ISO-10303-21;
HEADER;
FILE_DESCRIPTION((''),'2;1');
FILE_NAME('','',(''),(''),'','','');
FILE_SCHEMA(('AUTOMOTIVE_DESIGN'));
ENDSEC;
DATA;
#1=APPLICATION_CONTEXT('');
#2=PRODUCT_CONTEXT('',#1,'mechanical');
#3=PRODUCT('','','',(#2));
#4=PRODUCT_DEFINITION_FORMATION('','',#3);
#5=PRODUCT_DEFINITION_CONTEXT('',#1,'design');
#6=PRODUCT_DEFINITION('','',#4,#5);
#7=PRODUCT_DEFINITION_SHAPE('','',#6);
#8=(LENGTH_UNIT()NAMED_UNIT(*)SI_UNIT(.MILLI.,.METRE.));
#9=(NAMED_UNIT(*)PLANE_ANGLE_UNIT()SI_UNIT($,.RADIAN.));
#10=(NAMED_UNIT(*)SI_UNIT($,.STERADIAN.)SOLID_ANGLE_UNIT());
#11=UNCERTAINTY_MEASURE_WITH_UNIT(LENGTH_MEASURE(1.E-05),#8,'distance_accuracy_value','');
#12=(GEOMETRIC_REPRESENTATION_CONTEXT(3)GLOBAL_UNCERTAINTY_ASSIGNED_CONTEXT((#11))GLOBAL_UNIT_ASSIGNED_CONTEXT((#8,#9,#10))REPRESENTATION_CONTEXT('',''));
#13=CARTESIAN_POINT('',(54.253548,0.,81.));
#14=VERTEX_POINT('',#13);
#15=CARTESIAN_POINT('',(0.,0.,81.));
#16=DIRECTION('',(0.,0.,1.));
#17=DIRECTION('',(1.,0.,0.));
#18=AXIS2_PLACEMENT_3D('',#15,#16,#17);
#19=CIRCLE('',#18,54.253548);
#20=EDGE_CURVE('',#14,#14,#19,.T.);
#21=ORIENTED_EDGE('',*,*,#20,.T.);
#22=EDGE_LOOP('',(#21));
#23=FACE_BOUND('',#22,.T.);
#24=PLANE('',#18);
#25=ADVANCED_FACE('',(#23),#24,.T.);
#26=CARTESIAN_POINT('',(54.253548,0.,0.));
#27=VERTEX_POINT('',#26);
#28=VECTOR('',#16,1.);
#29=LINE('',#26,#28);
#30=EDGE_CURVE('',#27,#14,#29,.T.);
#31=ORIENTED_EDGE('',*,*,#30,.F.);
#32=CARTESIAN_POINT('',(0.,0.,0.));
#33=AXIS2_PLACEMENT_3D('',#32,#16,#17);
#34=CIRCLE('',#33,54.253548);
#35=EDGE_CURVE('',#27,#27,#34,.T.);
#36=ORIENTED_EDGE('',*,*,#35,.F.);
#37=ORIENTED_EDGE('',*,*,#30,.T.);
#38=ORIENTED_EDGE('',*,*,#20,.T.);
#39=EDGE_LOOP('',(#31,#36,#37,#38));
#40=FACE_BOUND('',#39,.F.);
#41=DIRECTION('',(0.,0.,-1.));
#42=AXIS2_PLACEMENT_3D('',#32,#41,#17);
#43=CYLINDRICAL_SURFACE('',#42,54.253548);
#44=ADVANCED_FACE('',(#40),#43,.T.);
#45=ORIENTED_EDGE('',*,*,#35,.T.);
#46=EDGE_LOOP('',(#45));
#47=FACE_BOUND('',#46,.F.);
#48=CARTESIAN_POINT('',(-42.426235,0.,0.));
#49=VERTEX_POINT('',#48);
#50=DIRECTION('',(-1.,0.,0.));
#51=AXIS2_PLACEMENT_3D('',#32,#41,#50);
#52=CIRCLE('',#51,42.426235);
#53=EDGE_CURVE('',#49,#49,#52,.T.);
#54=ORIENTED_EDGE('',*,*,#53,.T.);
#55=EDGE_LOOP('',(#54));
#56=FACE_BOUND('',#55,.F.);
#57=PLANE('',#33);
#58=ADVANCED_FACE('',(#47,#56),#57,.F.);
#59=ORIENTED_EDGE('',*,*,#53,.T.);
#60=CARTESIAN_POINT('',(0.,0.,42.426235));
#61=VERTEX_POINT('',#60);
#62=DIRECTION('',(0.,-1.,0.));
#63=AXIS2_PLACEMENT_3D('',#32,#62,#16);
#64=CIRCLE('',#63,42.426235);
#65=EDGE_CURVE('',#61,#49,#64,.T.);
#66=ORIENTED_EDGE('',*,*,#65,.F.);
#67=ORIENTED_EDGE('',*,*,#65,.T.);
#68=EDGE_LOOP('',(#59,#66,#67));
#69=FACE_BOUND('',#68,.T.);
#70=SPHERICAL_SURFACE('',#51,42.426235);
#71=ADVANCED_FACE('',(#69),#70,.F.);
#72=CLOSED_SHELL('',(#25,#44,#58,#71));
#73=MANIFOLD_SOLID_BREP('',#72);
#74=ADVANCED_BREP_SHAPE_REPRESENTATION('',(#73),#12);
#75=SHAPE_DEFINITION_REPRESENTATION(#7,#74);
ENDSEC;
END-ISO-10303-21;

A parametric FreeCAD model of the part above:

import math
import FreeCAD as App
import Part
import Sketcher
Q = App.Units.Quantity

doc = App.newDocument("Part")
body = doc.addObject("PartDesign::Body", "Body")

# Sketch on XY plane
sketch1 = body.newObject("Sketcher::SketchObject", "Sketch")
sketch1.AttachmentSupport = (doc.getObject("XY_Plane"), [""])
sketch1.MapMode = "FlatFace"
sketch1.addGeometry(Part.Circle(App.Vector(0, 0, 0), App.Vector(0, 0, 1), 54), False)
sketch1.addConstraint([
    Sketcher.Constraint("Coincident", 0, 3, -1, 1),
    Sketcher.Constraint("Diameter", 0, Q("108.507096 mm")),
])
pad1 = body.newObject("PartDesign::Pad", "Pad")
pad1.Profile = sketch1
pad1.Length = 81

# Sketch on XZ plane
sketch2 = body.newObject("Sketcher::SketchObject", "Sketch001")
sketch2.AttachmentSupport = (doc.getObject("XZ_Plane"), [""])
sketch2.MapMode = "FlatFace"
sketch2.addGeometry([
    Part.LineSegment(App.Vector(0, -42, 0), App.Vector(0, 42, 0)),
    Part.ArcOfCircle(Part.Circle(App.Vector(0, 0, 0), App.Vector(0, 0, 1), 42), math.radians(90), math.radians(270)),
], False)
sketch2.addConstraint([
    Sketcher.Constraint("Coincident", 0, 1, 1, 2),
    Sketcher.Constraint("Coincident", 1, 1, 0, 2),
    Sketcher.Constraint("Vertical", 0),
    Sketcher.Constraint("Coincident", 1, 3, -1, 1),
    Sketcher.Constraint("PointOnObject", 0, 1, -2),
    Sketcher.Constraint("Radius", 1, Q("42.426235 mm")),
])
groove = body.newObject("PartDesign::Groove", "Groove")
groove.Profile = sketch2
groove.ReferenceAxis = (sketch2, ["V_Axis"])
groove.Angle = 360

doc.recompute()
